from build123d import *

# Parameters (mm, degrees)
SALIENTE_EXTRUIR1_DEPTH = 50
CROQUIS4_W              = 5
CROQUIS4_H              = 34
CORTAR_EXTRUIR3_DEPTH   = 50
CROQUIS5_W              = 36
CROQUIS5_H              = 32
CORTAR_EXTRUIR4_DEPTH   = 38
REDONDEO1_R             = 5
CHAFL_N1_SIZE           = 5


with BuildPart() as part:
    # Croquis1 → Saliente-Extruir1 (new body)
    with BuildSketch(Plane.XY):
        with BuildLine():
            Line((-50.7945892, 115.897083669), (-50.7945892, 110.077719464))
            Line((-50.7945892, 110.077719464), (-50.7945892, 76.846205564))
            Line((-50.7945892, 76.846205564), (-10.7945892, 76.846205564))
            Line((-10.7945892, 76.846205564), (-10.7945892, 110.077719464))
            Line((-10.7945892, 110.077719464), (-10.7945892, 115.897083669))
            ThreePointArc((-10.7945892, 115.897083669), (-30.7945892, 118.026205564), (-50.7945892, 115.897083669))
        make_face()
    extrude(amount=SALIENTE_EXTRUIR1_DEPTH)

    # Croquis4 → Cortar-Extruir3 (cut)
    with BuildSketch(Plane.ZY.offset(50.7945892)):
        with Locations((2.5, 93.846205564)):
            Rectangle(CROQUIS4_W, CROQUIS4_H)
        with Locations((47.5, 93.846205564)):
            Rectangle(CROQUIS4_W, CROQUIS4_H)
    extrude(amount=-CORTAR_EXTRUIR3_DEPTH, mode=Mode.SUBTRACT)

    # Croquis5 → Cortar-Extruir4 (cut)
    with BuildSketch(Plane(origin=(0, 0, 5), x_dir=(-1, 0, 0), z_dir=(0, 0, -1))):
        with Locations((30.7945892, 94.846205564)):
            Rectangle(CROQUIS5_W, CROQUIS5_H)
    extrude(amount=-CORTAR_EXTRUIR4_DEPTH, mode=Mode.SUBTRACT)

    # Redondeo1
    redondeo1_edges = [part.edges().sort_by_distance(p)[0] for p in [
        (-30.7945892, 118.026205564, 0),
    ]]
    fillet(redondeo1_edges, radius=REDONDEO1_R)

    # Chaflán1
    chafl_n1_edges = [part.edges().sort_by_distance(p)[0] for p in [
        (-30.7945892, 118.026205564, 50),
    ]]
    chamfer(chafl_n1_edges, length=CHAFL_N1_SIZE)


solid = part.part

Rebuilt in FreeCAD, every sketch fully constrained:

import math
import FreeCAD as App
import Part
import Sketcher
from FreeCAD import Vector


def edges_at(feature, points):
    """Names of the edges that pass closest to the given points."""
    edges = feature.Shape.Edges
    near = lambda p: min(range(len(edges)), key=lambda i: edges[i].distToShape(Part.Vertex(*p))[0])
    return sorted({f"Edge{near(p) + 1}" for p in points})

doc = App.newDocument("Part")
body = doc.addObject("PartDesign::Body", "Body")

# Sketch on XY plane
sketch1 = body.newObject("Sketcher::SketchObject", "Sketch")
sketch1.AttachmentSupport = (doc.getObject("XY_Plane"), [""])
sketch1.MapMode = "FlatFace"
sketch1.addGeometry(Part.LineSegment(Vector(-51, 116, 0), Vector(-51, 77, 0)), False)
sketch1.addGeometry(Part.LineSegment(Vector(-51, 77, 0), Vector(-11, 77, 0)), False)
sketch1.addGeometry(Part.LineSegment(Vector(-11, 77, 0), Vector(-11, 116, 0)), False)
sketch1.addGeometry(Part.ArcOfCircle(Part.Circle(Vector(-31, 23, 0), Vector(0, 0, 1), 95), math.radians(78), math.radians(102)), False)
sketch1.addConstraint(Sketcher.Constraint("Coincident", 0, 2, 1, 1))
sketch1.addConstraint(Sketcher.Constraint("Coincident", 1, 2, 2, 1))
sketch1.addConstraint(Sketcher.Constraint("Coincident", 2, 2, 3, 1))
sketch1.addConstraint(Sketcher.Constraint("Coincident", 3, 2, 0, 1))
sketch1.addConstraint(Sketcher.Constraint("Vertical", 0))
sketch1.addConstraint(Sketcher.Constraint("Horizontal", 1))
sketch1.addConstraint(Sketcher.Constraint("Vertical", 2))
sketch1.addConstraint(Sketcher.Constraint("Horizontal", 2, 2, 3, 2))
sketch1.addConstraint(Sketcher.Constraint("Radius", 3, 95.0))
sketch1.addConstraint(Sketcher.Constraint("DistanceX", 1, 1, 1, 2, 40.0))
sketch1.addConstraint(Sketcher.Constraint("DistanceY", 3, 3, 0, 2, 53.82))
sketch1.addConstraint(Sketcher.Constraint("DistanceX", 3, 3, -1, 1, 30.794589))
sketch1.addConstraint(Sketcher.Constraint("DistanceY", -1, 1, 3, 3, 23.026206))
pad1 = body.newObject("PartDesign::Pad", "Pad")
pad1.Profile = sketch1
pad1.Length = 50

# Sketch on YZ plane
sketch2 = body.newObject("Sketcher::SketchObject", "Sketch001")
sketch2.AttachmentSupport = (doc.getObject("YZ_Plane"), [""])
sketch2.MapMode = "FlatFace"
sketch2.AttachmentOffset = App.Placement(Vector(0, 0, -50.794589), App.Rotation())
sketch2.addGeometry(Part.LineSegment(Vector(111, 0, 0), Vector(77, 0, 0)), False)
sketch2.addGeometry(Part.LineSegment(Vector(77, 0, 0), Vector(77, 5, 0)), False)
sketch2.addGeometry(Part.LineSegment(Vector(77, 5, 0), Vector(111, 5, 0)), False)
sketch2.addGeometry(Part.LineSegment(Vector(111, 5, 0), Vector(111, 0, 0)), False)
sketch2.addGeometry(Part.LineSegment(Vector(111, 45, 0), Vector(77, 45, 0)), False)
sketch2.addGeometry(Part.LineSegment(Vector(77, 45, 0), Vector(77, 50, 0)), False)
sketch2.addGeometry(Part.LineSegment(Vector(77, 50, 0), Vector(111, 50, 0)), False)
sketch2.addGeometry(Part.LineSegment(Vector(111, 50, 0), Vector(111, 45, 0)), False)
sketch2.addConstraint(Sketcher.Constraint("Coincident", 0, 2, 1, 1))
sketch2.addConstraint(Sketcher.Constraint("Coincident", 1, 2, 2, 1))
sketch2.addConstraint(Sketcher.Constraint("Coincident", 2, 2, 3, 1))
sketch2.addConstraint(Sketcher.Constraint("Coincident", 3, 2, 0, 1))
sketch2.addConstraint(Sketcher.Constraint("Coincident", 4, 2, 5, 1))
sketch2.addConstraint(Sketcher.Constraint("Coincident", 5, 2, 6, 1))
sketch2.addConstraint(Sketcher.Constraint("Coincident", 6, 2, 7, 1))
sketch2.addConstraint(Sketcher.Constraint("Coincident", 7, 2, 4, 1))
sketch2.addConstraint(Sketcher.Constraint("Horizontal", 0))
sketch2.addConstraint(Sketcher.Constraint("Vertical", 1))
sketch2.addConstraint(Sketcher.Constraint("Horizontal", 2))
sketch2.addConstraint(Sketcher.Constraint("Vertical", 3))
sketch2.addConstraint(Sketcher.Constraint("Horizontal", 4))
sketch2.addConstraint(Sketcher.Constraint("Vertical", 5))
sketch2.addConstraint(Sketcher.Constraint("Horizontal", 6))
sketch2.addConstraint(Sketcher.Constraint("Vertical", 7))
sketch2.addConstraint(Sketcher.Constraint("PointOnObject", 0, 2, -1))
sketch2.addConstraint(Sketcher.Constraint("Vertical", 1, 2, 4, 2))
sketch2.addConstraint(Sketcher.Constraint("Vertical", 3, 2, 6, 2))
sketch2.addConstraint(Sketcher.Constraint("Equal", 3, 5))
sketch2.addConstraint(Sketcher.Constraint("DistanceX", 0, 2, 0, 1, 34.0))
sketch2.addConstraint(Sketcher.Constraint("DistanceY", 1, 1, 1, 2, 5.0))
sketch2.addConstraint(Sketcher.Constraint("DistanceY", -1, 1, 4, 2, 45.0))
sketch2.addConstraint(Sketcher.Constraint("DistanceX", -1, 1, 0, 2, 76.846206))
pocket1 = body.newObject("PartDesign::Pocket", "Pocket")
pocket1.Profile = sketch2
pocket1.Length = 50
pocket1.Reversed = True

# Sketch on XY plane
sketch3 = body.newObject("Sketcher::SketchObject", "Sketch002")
sketch3.AttachmentSupport = (doc.getObject("XY_Plane"), [""])
sketch3.MapMode = "FlatFace"
sketch3.AttachmentOffset = App.Placement(Vector(0, 0, 5), App.Rotation())
sketch3.addGeometry(Part.LineSegment(Vector(-13, 111, 0), Vector(-13, 79, 0)), False)
sketch3.addGeometry(Part.LineSegment(Vector(-13, 79, 0), Vector(-49, 79, 0)), False)
sketch3.addGeometry(Part.LineSegment(Vector(-49, 79, 0), Vector(-49, 111, 0)), False)
sketch3.addGeometry(Part.LineSegment(Vector(-49, 111, 0), Vector(-13, 111, 0)), False)
sketch3.addConstraint(Sketcher.Constraint("Coincident", 0, 2, 1, 1))
sketch3.addConstraint(Sketcher.Constraint("Coincident", 1, 2, 2, 1))
sketch3.addConstraint(Sketcher.Constraint("Coincident", 2, 2, 3, 1))
sketch3.addConstraint(Sketcher.Constraint("Coincident", 3, 2, 0, 1))
sketch3.addConstraint(Sketcher.Constraint("Vertical", 0))
sketch3.addConstraint(Sketcher.Constraint("Horizontal", 1))
sketch3.addConstraint(Sketcher.Constraint("Vertical", 2))
sketch3.addConstraint(Sketcher.Constraint("Horizontal", 3))
sketch3.addConstraint(Sketcher.Constraint("DistanceX", 1, 2, 1, 1, 36.0))
sketch3.addConstraint(Sketcher.Constraint("DistanceY", 0, 2, 0, 1, 32.0))
sketch3.addConstraint(Sketcher.Constraint("DistanceX", 0, 2, -1, 1, 12.794589))
sketch3.addConstraint(Sketcher.Constraint("DistanceY", -1, 1, 0, 2, 78.846206))
pocket2 = body.newObject("PartDesign::Pocket", "Pocket001")
pocket2.Profile = sketch3
pocket2.Length = 38
pocket2.Reversed = True
doc.recompute()

fillet = body.newObject("PartDesign::Fillet", "Fillet")
fillet.Base = (pocket2, edges_at(pocket2, [(-30.795, 118.026, 0)]))
fillet.Radius = 5
doc.recompute()

chamfer = body.newObject("PartDesign::Chamfer", "Chamfer")
chamfer.Base = (fillet, edges_at(fillet, [(-30.795, 118.026, 50)]))
chamfer.Size = 5

doc.recompute()
